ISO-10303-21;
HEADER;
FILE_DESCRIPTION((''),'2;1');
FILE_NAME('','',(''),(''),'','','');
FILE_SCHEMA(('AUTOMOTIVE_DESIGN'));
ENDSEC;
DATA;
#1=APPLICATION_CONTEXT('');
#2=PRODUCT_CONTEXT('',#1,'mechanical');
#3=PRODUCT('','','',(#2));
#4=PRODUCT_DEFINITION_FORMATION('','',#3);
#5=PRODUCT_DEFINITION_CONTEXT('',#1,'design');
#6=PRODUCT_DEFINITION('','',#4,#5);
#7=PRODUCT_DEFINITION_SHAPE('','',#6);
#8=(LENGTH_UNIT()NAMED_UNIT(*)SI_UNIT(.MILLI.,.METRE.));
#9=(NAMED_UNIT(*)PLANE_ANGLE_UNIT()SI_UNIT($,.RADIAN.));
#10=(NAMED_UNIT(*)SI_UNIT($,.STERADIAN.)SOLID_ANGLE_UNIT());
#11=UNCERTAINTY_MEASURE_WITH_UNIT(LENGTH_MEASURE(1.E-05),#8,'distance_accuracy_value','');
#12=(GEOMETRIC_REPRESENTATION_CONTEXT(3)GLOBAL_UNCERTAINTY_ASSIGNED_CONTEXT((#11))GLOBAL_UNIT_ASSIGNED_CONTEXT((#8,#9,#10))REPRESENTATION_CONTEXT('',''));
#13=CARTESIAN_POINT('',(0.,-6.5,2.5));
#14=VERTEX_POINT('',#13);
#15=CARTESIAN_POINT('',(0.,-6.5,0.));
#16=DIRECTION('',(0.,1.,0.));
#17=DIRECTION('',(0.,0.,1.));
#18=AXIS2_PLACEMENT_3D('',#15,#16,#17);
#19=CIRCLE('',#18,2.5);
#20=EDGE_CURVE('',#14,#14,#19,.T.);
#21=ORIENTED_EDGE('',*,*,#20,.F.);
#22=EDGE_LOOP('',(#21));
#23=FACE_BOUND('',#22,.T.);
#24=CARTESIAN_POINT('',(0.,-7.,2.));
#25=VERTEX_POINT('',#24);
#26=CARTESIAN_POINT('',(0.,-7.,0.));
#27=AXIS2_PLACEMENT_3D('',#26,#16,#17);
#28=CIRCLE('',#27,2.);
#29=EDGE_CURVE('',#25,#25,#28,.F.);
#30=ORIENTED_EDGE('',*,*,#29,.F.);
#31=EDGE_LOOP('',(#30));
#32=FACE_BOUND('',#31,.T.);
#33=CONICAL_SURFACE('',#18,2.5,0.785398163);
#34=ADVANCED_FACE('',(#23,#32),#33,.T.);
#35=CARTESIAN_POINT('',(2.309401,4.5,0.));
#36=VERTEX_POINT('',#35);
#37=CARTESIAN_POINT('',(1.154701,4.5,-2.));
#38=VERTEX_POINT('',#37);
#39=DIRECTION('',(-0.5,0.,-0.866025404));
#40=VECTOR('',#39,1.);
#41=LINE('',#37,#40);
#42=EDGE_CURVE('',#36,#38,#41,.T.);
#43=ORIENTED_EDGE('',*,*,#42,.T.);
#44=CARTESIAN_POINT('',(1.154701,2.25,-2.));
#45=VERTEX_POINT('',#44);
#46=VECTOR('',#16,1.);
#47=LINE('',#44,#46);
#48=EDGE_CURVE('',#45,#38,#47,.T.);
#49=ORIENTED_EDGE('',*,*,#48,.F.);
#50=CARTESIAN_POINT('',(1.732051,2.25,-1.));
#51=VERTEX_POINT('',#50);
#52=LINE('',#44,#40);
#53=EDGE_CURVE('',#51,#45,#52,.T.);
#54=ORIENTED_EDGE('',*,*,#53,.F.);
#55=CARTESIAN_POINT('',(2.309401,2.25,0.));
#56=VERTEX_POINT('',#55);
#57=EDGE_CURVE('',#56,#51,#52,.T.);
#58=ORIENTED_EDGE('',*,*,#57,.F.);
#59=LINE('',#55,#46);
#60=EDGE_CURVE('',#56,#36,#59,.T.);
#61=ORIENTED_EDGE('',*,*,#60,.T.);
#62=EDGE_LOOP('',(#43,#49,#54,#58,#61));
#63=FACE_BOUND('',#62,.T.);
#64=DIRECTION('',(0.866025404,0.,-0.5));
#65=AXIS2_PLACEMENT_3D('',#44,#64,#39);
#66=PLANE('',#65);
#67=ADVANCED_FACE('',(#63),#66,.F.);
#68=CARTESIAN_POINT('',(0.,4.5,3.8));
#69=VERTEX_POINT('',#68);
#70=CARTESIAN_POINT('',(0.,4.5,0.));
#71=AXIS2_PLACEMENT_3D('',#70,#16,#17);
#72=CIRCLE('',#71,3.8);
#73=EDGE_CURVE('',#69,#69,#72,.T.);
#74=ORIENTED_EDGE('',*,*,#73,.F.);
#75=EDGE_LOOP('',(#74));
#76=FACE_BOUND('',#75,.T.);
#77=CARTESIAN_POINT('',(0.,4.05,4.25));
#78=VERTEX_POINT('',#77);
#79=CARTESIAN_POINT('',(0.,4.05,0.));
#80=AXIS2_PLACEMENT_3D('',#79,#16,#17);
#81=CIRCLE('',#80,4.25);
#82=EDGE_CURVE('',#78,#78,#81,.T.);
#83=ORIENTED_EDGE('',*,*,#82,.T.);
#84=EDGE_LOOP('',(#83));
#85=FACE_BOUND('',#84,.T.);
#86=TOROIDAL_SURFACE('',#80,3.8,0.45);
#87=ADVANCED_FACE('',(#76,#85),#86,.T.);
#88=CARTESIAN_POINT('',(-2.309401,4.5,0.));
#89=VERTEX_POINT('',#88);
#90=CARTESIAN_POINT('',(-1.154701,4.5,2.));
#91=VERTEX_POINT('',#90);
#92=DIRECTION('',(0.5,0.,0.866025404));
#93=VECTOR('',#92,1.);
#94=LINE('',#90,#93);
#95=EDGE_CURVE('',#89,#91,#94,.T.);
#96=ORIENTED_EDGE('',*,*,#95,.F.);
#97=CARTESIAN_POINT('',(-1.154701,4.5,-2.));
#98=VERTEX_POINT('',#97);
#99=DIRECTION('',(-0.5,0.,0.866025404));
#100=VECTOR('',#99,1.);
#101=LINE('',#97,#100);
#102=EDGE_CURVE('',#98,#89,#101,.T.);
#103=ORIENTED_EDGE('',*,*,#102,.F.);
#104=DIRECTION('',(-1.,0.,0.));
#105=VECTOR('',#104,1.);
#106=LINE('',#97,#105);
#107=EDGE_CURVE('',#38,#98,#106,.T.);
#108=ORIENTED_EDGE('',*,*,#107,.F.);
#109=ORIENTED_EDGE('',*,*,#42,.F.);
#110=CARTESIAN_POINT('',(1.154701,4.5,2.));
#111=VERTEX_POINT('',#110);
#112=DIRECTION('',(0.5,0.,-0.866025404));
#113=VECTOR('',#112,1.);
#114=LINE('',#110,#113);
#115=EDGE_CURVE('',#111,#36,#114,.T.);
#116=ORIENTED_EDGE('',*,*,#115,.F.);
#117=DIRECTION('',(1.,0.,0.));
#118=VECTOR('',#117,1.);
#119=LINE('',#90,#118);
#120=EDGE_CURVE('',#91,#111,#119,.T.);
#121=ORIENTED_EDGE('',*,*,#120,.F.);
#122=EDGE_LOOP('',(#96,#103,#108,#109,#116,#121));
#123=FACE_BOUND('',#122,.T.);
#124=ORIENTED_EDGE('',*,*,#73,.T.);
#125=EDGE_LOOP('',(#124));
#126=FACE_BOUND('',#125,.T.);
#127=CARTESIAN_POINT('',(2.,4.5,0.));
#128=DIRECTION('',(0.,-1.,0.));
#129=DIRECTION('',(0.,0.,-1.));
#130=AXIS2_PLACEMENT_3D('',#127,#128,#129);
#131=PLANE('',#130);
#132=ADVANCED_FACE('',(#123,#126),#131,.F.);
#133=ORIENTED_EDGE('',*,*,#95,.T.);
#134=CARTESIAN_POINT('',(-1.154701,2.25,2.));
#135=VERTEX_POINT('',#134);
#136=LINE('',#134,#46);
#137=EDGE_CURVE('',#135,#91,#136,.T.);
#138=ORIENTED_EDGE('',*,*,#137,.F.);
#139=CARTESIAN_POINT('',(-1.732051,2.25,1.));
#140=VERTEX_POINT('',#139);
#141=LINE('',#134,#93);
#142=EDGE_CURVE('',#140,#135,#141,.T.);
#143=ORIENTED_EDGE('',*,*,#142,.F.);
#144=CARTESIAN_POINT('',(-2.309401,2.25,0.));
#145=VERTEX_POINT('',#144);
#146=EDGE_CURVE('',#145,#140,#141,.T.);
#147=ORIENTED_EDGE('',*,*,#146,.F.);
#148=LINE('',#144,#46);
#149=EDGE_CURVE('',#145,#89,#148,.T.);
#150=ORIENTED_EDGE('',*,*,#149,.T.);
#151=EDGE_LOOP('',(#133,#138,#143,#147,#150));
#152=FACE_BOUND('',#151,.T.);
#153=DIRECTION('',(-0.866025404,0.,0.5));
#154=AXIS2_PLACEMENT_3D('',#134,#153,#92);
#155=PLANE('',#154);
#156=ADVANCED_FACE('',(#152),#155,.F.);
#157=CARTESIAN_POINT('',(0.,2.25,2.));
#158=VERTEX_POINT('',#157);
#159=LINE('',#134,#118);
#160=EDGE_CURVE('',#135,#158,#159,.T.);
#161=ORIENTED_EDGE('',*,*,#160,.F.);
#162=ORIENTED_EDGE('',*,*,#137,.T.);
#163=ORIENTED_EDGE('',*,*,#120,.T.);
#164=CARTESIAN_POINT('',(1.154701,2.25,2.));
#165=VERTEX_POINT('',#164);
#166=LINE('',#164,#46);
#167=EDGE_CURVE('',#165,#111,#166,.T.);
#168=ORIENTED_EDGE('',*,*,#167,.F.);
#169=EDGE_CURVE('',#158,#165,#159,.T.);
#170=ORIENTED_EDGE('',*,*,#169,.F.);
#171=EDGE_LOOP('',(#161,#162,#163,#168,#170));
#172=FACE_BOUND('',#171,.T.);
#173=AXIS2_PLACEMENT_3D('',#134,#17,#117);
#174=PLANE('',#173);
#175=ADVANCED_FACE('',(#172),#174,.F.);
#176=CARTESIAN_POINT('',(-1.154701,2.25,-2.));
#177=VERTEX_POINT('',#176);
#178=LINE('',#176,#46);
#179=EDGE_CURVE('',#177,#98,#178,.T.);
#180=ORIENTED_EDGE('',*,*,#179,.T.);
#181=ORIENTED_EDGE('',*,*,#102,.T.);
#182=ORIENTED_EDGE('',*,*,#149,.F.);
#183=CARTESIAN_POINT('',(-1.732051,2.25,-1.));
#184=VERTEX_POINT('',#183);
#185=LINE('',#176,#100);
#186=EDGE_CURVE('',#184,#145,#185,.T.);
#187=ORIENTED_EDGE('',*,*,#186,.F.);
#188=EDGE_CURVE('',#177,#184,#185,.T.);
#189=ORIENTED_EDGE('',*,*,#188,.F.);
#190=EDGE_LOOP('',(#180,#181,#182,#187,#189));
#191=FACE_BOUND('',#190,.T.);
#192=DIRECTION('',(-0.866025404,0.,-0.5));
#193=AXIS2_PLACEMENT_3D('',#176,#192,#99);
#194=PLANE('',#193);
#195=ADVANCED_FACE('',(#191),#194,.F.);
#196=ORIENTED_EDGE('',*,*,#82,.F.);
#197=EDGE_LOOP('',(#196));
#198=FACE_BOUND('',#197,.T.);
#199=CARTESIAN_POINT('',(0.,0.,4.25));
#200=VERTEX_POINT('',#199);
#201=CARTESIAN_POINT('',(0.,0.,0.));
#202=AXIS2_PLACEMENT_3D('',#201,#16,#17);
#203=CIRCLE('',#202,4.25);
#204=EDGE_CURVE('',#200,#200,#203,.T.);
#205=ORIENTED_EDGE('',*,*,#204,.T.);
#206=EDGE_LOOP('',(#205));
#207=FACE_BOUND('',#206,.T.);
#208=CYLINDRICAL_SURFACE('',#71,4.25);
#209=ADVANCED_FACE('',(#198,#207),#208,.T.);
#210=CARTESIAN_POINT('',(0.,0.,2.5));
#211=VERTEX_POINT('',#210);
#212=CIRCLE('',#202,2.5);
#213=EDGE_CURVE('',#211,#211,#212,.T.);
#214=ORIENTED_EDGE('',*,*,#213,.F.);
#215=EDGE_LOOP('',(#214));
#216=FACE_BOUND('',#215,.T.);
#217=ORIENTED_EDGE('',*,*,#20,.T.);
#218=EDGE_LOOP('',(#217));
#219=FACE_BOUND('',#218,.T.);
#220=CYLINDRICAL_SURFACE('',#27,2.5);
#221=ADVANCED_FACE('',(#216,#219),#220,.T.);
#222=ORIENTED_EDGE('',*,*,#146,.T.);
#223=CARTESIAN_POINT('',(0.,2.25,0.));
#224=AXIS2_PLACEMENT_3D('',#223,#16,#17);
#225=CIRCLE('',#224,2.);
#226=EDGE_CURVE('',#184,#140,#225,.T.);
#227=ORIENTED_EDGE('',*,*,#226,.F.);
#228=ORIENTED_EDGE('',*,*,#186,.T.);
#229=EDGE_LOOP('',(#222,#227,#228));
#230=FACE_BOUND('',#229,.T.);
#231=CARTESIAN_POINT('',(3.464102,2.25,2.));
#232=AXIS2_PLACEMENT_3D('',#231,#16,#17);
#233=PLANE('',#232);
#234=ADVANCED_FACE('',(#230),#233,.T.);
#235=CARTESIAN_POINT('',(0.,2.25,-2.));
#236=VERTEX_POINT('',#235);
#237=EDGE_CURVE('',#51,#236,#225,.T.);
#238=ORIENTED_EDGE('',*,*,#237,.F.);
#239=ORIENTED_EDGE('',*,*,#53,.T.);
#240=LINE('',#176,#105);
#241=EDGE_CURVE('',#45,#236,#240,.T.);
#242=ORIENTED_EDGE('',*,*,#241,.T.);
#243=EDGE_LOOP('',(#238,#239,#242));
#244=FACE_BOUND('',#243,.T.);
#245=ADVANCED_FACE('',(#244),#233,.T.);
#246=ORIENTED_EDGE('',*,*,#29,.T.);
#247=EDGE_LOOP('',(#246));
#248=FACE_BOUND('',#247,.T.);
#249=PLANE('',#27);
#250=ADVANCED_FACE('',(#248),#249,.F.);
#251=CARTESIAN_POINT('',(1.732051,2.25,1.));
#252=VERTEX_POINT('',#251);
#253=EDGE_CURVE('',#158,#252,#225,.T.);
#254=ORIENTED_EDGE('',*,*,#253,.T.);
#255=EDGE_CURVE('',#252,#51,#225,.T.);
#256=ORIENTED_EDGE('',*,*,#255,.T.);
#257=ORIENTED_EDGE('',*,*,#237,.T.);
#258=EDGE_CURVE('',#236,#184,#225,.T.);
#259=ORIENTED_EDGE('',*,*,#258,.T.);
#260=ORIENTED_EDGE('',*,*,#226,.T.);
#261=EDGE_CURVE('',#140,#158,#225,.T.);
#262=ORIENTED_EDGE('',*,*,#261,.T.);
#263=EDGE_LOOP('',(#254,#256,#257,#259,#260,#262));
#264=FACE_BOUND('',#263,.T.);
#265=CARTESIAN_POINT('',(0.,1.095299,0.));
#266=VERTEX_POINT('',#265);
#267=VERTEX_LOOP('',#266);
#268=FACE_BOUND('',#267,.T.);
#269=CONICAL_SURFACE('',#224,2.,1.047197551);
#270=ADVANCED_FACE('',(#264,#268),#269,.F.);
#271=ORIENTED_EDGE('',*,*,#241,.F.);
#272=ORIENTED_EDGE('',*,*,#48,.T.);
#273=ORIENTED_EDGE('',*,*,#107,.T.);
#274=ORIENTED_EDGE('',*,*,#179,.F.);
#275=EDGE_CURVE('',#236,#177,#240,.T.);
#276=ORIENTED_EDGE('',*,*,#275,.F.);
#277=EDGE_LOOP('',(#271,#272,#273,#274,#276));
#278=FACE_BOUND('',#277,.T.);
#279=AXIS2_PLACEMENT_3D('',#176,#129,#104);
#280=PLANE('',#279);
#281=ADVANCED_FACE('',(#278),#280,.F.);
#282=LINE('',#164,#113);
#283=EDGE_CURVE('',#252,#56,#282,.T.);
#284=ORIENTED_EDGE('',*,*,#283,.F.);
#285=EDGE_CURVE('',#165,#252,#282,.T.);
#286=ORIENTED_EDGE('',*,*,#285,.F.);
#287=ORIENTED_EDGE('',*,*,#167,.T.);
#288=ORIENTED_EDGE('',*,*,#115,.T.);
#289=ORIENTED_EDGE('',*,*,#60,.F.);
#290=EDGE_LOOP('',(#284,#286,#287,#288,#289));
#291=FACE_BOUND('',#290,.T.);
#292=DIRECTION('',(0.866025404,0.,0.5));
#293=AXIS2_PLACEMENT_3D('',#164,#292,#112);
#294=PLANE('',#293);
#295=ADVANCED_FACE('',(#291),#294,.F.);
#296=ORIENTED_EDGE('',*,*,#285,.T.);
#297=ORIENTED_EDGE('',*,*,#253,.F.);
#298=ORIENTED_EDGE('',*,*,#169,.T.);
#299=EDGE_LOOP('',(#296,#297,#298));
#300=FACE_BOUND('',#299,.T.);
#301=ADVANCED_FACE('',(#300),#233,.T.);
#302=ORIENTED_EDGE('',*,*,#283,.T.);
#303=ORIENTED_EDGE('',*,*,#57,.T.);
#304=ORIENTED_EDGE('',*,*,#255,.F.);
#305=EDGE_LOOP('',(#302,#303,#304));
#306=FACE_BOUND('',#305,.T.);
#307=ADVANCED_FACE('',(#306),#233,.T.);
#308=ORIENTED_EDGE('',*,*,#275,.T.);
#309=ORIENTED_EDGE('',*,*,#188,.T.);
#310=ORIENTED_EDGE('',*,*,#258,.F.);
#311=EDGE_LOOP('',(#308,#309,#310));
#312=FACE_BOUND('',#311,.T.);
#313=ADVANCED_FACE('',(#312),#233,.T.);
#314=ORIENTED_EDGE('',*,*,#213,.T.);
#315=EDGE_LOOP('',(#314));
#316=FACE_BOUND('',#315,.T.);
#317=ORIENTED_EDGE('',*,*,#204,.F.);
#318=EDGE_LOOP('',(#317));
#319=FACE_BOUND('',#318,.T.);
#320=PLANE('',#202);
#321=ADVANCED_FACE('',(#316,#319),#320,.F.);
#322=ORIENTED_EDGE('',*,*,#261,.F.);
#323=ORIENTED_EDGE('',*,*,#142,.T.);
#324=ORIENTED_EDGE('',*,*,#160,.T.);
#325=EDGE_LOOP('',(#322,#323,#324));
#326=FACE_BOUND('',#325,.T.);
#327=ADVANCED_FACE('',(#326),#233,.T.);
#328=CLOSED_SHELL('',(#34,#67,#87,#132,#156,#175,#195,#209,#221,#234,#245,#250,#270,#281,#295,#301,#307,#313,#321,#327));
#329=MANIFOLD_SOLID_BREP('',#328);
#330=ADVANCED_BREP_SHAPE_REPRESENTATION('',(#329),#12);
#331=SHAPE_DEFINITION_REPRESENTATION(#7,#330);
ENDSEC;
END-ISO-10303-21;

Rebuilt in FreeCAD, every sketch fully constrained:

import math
import FreeCAD as App
import Part
import Sketcher

V = App.Vector
Q = App.Units.Quantity


def edges_at(feature, points):
    """Names of the edges that pass closest to the given points."""
    edges = feature.Shape.Edges
    near = lambda p: min(range(len(edges)), key=lambda i: edges[i].distToShape(Part.Vertex(*p))[0])
    return sorted({f"Edge{near(p) + 1}" for p in points})

doc = App.newDocument("Part")
params = doc.addObject("Spreadsheet::Sheet", "Params")
for row, (alias, value) in enumerate([
    ("sketch1_diameter", "5 mm"),
    ("pad1_length", "7 mm"),
    ("chamfer_size", "0.5 mm"),
    ("sketch2_radius", "0.45 mm"),
    ("sketch2_width", "1.8 mm"),
    ("sketch2_height", "2.25 mm"),
    ("sketch2_height2", "4.05 mm"),
    ("revolution_angle", "360 deg"),
    ("pocket1_length", "2.25 mm"),
], start=1):
    params.set(f"A{row}", alias)
    params.set(f"B{row}", "=" + value)
    params.setAlias(f"B{row}", alias)

body = doc.addObject("PartDesign::Body", "Body")

# Sketch on XZ plane
sketch1 = doc.addObject("Sketcher::SketchObject", "Sketch")
body.addObject(sketch1)
sketch1.AttachmentSupport = (doc.XZ_Plane, [""])
sketch1.MapMode = "FlatFace"
sketch1.addGeometry(Part.Circle(V(0, 0, 0), V(0, 0, 1), 2.5), False)
sketch1.addConstraint(Sketcher.Constraint("Coincident", 0, 3, -1, 1))
sketch1.addConstraint(Sketcher.Constraint("Diameter", 0, 5.0))
sketch1.setExpression("Constraints[1]", "Params.sketch1_diameter")
pad1 = doc.addObject("PartDesign::Pad", "Pad")
body.addObject(pad1)
pad1.Profile = sketch1
pad1.setExpression("Length", "Params.pad1_length")
doc.recompute()

chamfer = doc.addObject("PartDesign::Chamfer", "Chamfer")
body.addObject(chamfer)
chamfer.Base = (pad1, edges_at(pad1, [(0, -7, -2.5)]))
chamfer.setExpression("Size", "Params.chamfer_size")

# Sketch on XY plane
sketch2 = doc.addObject("Sketcher::SketchObject", "Sketch001")
body.addObject(sketch2)
sketch2.AttachmentSupport = (doc.XY_Plane, [""])
sketch2.MapMode = "FlatFace"
sketch2.addGeometry(Part.LineSegment(V(2, 4.5, 0), V(2, 2.25, 0)), False)
sketch2.addGeometry(Part.LineSegment(V(2, 2.25, 0), V(0, 1.1, 0)), False)
sketch2.addGeometry(Part.LineSegment(V(0, 1.1, 0), V(0, 0, 0)), False)
sketch2.addGeometry(Part.LineSegment(V(0, 0, 0), V(4.25, 0, 0)), False)
sketch2.addGeometry(Part.LineSegment(V(4.25, 0, 0), V(4.25, 4.05, 0)), False)
sketch2.addGeometry(Part.ArcOfCircle(Part.Circle(V(3.8, 4.05, 0), V(0, 0, 1), 0.45), math.radians(0), math.radians(90)), False)
sketch2.addGeometry(Part.LineSegment(V(3.8, 4.5, 0), V(2, 4.5, 0)), False)
sketch2.addConstraint(Sketcher.Constraint("Coincident", 0, 2, 1, 1))
sketch2.addConstraint(Sketcher.Constraint("Coincident", 1, 2, 2, 1))
sketch2.addConstraint(Sketcher.Constraint("Coincident", 2, 2, 3, 1))
sketch2.addConstraint(Sketcher.Constraint("Coincident", 3, 2, 4, 1))
sketch2.addConstraint(Sketcher.Constraint("Tangent", 4, 2, 5, 1))
sketch2.addConstraint(Sketcher.Constraint("Tangent", 5, 2, 6, 1))
sketch2.addConstraint(Sketcher.Constraint("Coincident", 6, 2, 0, 1))
sketch2.addConstraint(Sketcher.Constraint("Vertical", 0))
sketch2.addConstraint(Sketcher.Constraint("Vertical", 2))
sketch2.addConstraint(Sketcher.Constraint("Horizontal", 3))
sketch2.addConstraint(Sketcher.Constraint("Vertical", 4))
sketch2.addConstraint(Sketcher.Constraint("Horizontal", 6))
sketch2.addConstraint(Sketcher.Constraint("Coincident", 2, 2, -1, 1))
sketch2.addConstraint(Sketcher.Constraint("Angle", 1, Q("-150 deg")))
sketch2.addConstraint(Sketcher.Constraint("Radius", 5, 0.45))
sketch2.addConstraint(Sketcher.Constraint("DistanceX", 6, 2, 6, 1, 1.8))
sketch2.addConstraint(Sketcher.Constraint("DistanceX", -1, 1, 0, 2, 2.0))
sketch2.addConstraint(Sketcher.Constraint("DistanceY", 0, 2, 0, 1, 2.25))
sketch2.addConstraint(Sketcher.Constraint("DistanceY", 4, 1, 4, 2, 4.05))
sketch2.setExpression("Constraints[14]", "Params.sketch2_radius")
sketch2.setExpression("Constraints[15]", "Params.sketch2_width")
sketch2.setExpression("Constraints[17]", "Params.sketch2_height")
sketch2.setExpression("Constraints[18]", "Params.sketch2_height2")
revolution = doc.addObject("PartDesign::Revolution", "Revolution")
body.addObject(revolution)
revolution.Profile = sketch2
revolution.ReferenceAxis = (sketch2, ["V_Axis"])
revolution.setExpression("Angle", "Params.revolution_angle")

# Sketch on XZ plane
sketch3 = doc.addObject("Sketcher::SketchObject", "Sketch002")
body.addObject(sketch3)
sketch3.AttachmentSupport = (doc.XZ_Plane, [""])
sketch3.MapMode = "FlatFace"
sketch3.AttachmentOffset = App.Placement(V(0, 0, -4.5), App.Rotation())
sketch3.addGeometry(Part.LineSegment(V(-1.2, 2, 0), V(1.2, 2, 0)), False)
sketch3.addGeometry(Part.LineSegment(V(1.2, 2, 0), V(2.3, 0, 0)), False)
sketch3.addGeometry(Part.LineSegment(V(2.3, 0, 0), V(1.2, -2, 0)), False)
sketch3.addGeometry(Part.LineSegment(V(1.2, -2, 0), V(-1.2, -2, 0)), False)
sketch3.addGeometry(Part.LineSegment(V(-1.2, -2, 0), V(-2.3, 0, 0)), False)
sketch3.addGeometry(Part.LineSegment(V(-2.3, 0, 0), V(-1.2, 2, 0)), False)
sketch3.addConstraint(Sketcher.Constraint("Coincident", 0, 2, 1, 1))
sketch3.addConstraint(Sketcher.Constraint("Coincident", 1, 2, 2, 1))
sketch3.addConstraint(Sketcher.Constraint("Coincident", 2, 2, 3, 1))
sketch3.addConstraint(Sketcher.Constraint("Coincident", 3, 2, 4, 1))
sketch3.addConstraint(Sketcher.Constraint("Coincident", 4, 2, 5, 1))
sketch3.addConstraint(Sketcher.Constraint("Coincident", 5, 2, 0, 1))
sketch3.addConstraint(Sketcher.Constraint("Horizontal", 0))
sketch3.addConstraint(Sketcher.Constraint("Horizontal", 3))
sketch3.addConstraint(Sketcher.Constraint("Symmetric", 0, 2, 3, 2, -1, 1))
sketch3.addConstraint(Sketcher.Constraint("Symmetric", 1, 2, 4, 2, -1, 1))
sketch3.addConstraint(Sketcher.Constraint("PointOnObject", 1, 2, -1))
sketch3.addConstraint(Sketcher.Constraint("Parallel", 2, 5))
sketch3.addConstraint(Sketcher.Constraint("Vertical", 0, 2, 2, 2))
sketch3.addConstraint(Sketcher.Constraint("Angle", 1, Q("-60 deg")))
sketch3.addConstraint(Sketcher.Constraint("DistanceY", -1, 1, 0, 2, 2.0))
sketch3.addConstraint(Sketcher.Constraint("DistanceX", 0, 1, 0, 2, 2.309401))
pocket1 = doc.addObject("PartDesign::Pocket", "Pocket")
body.addObject(pocket1)
pocket1.Profile = sketch3
pocket1.setExpression("Length", "Params.pocket1_length")
pocket1.Reversed = True

doc.recompute()
